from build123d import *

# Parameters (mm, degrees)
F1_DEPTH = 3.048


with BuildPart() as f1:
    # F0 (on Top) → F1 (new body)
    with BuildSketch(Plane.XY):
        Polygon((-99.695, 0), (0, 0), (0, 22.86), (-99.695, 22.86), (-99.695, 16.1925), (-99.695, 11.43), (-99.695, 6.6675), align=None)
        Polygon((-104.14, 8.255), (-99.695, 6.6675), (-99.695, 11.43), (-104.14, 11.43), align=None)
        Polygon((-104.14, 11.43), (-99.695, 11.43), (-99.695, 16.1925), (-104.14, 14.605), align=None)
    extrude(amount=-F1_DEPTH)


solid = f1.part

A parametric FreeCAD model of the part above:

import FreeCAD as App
import Part
import Sketcher
Q = App.Units.Quantity


def add_polygon(sketch, points):
    """Adds a closed chain of lines whose ends are joined by coincident constraints."""
    first, n = sketch.GeometryCount, len(points)
    for a, b in zip(points, points[1:] + points[:1]):
        sketch.addGeometry(Part.LineSegment(App.Vector(*a, 0), App.Vector(*b, 0)), False)
    for i in range(n):
        sketch.addConstraint(Sketcher.Constraint("Coincident", first + i, 2, first + (i + 1) % n, 1))

doc = App.newDocument("Part")
body = doc.addObject("PartDesign::Body", "Body")

# Sketch on XY plane
sketch1 = doc.addObject("Sketcher::SketchObject", "Sketch")
body.addObject(sketch1)
sketch1.AttachmentSupport = (doc.XY_Plane, [""])
sketch1.MapMode = "FlatFace"
add_polygon(sketch1, [(-99.695, 0), (0, 0), (0, 22.86), (-99.695, 22.86), (-99.695, 16.1925), (-104.14, 14.605), (-104.14, 8.255), (-99.695, 6.6675)])  # lines 0-7
sketch1.addConstraint([
    Sketcher.Constraint("Horizontal", 0),
    Sketcher.Constraint("Vertical", 1),
    Sketcher.Constraint("Horizontal", 2),
    Sketcher.Constraint("Vertical", 3),
    Sketcher.Constraint("Vertical", 5),
    Sketcher.Constraint("Vertical", 7),
    Sketcher.Constraint("Coincident", 0, 2, -1, 1),
    Sketcher.Constraint("Vertical", 3, 2, 6, 2),
    Sketcher.Constraint("Equal", 3, 7),
    Sketcher.Constraint("Equal", 4, 6),
    Sketcher.Constraint("DistanceY", 1, 1, 1, 2, Q("0.9 in")),
    Sketcher.Constraint("DistanceY", 5, 2, 5, 1, Q("0.25 in")),
    Sketcher.Constraint("DistanceX", 4, 2, -1, 1, Q("4.1 in")),
    Sketcher.Constraint("DistanceX", 0, 1, 0, 2, Q("3.925 in")),
    Sketcher.Constraint("DistanceY", 3, 2, 3, 1, Q("0.2625 in")),
])
pad1 = doc.addObject("PartDesign::Pad", "Pad")
body.addObject(pad1)
pad1.Profile = sketch1
pad1.Length = Q("0.12 in")
pad1.Reversed = True

doc.recompute()
